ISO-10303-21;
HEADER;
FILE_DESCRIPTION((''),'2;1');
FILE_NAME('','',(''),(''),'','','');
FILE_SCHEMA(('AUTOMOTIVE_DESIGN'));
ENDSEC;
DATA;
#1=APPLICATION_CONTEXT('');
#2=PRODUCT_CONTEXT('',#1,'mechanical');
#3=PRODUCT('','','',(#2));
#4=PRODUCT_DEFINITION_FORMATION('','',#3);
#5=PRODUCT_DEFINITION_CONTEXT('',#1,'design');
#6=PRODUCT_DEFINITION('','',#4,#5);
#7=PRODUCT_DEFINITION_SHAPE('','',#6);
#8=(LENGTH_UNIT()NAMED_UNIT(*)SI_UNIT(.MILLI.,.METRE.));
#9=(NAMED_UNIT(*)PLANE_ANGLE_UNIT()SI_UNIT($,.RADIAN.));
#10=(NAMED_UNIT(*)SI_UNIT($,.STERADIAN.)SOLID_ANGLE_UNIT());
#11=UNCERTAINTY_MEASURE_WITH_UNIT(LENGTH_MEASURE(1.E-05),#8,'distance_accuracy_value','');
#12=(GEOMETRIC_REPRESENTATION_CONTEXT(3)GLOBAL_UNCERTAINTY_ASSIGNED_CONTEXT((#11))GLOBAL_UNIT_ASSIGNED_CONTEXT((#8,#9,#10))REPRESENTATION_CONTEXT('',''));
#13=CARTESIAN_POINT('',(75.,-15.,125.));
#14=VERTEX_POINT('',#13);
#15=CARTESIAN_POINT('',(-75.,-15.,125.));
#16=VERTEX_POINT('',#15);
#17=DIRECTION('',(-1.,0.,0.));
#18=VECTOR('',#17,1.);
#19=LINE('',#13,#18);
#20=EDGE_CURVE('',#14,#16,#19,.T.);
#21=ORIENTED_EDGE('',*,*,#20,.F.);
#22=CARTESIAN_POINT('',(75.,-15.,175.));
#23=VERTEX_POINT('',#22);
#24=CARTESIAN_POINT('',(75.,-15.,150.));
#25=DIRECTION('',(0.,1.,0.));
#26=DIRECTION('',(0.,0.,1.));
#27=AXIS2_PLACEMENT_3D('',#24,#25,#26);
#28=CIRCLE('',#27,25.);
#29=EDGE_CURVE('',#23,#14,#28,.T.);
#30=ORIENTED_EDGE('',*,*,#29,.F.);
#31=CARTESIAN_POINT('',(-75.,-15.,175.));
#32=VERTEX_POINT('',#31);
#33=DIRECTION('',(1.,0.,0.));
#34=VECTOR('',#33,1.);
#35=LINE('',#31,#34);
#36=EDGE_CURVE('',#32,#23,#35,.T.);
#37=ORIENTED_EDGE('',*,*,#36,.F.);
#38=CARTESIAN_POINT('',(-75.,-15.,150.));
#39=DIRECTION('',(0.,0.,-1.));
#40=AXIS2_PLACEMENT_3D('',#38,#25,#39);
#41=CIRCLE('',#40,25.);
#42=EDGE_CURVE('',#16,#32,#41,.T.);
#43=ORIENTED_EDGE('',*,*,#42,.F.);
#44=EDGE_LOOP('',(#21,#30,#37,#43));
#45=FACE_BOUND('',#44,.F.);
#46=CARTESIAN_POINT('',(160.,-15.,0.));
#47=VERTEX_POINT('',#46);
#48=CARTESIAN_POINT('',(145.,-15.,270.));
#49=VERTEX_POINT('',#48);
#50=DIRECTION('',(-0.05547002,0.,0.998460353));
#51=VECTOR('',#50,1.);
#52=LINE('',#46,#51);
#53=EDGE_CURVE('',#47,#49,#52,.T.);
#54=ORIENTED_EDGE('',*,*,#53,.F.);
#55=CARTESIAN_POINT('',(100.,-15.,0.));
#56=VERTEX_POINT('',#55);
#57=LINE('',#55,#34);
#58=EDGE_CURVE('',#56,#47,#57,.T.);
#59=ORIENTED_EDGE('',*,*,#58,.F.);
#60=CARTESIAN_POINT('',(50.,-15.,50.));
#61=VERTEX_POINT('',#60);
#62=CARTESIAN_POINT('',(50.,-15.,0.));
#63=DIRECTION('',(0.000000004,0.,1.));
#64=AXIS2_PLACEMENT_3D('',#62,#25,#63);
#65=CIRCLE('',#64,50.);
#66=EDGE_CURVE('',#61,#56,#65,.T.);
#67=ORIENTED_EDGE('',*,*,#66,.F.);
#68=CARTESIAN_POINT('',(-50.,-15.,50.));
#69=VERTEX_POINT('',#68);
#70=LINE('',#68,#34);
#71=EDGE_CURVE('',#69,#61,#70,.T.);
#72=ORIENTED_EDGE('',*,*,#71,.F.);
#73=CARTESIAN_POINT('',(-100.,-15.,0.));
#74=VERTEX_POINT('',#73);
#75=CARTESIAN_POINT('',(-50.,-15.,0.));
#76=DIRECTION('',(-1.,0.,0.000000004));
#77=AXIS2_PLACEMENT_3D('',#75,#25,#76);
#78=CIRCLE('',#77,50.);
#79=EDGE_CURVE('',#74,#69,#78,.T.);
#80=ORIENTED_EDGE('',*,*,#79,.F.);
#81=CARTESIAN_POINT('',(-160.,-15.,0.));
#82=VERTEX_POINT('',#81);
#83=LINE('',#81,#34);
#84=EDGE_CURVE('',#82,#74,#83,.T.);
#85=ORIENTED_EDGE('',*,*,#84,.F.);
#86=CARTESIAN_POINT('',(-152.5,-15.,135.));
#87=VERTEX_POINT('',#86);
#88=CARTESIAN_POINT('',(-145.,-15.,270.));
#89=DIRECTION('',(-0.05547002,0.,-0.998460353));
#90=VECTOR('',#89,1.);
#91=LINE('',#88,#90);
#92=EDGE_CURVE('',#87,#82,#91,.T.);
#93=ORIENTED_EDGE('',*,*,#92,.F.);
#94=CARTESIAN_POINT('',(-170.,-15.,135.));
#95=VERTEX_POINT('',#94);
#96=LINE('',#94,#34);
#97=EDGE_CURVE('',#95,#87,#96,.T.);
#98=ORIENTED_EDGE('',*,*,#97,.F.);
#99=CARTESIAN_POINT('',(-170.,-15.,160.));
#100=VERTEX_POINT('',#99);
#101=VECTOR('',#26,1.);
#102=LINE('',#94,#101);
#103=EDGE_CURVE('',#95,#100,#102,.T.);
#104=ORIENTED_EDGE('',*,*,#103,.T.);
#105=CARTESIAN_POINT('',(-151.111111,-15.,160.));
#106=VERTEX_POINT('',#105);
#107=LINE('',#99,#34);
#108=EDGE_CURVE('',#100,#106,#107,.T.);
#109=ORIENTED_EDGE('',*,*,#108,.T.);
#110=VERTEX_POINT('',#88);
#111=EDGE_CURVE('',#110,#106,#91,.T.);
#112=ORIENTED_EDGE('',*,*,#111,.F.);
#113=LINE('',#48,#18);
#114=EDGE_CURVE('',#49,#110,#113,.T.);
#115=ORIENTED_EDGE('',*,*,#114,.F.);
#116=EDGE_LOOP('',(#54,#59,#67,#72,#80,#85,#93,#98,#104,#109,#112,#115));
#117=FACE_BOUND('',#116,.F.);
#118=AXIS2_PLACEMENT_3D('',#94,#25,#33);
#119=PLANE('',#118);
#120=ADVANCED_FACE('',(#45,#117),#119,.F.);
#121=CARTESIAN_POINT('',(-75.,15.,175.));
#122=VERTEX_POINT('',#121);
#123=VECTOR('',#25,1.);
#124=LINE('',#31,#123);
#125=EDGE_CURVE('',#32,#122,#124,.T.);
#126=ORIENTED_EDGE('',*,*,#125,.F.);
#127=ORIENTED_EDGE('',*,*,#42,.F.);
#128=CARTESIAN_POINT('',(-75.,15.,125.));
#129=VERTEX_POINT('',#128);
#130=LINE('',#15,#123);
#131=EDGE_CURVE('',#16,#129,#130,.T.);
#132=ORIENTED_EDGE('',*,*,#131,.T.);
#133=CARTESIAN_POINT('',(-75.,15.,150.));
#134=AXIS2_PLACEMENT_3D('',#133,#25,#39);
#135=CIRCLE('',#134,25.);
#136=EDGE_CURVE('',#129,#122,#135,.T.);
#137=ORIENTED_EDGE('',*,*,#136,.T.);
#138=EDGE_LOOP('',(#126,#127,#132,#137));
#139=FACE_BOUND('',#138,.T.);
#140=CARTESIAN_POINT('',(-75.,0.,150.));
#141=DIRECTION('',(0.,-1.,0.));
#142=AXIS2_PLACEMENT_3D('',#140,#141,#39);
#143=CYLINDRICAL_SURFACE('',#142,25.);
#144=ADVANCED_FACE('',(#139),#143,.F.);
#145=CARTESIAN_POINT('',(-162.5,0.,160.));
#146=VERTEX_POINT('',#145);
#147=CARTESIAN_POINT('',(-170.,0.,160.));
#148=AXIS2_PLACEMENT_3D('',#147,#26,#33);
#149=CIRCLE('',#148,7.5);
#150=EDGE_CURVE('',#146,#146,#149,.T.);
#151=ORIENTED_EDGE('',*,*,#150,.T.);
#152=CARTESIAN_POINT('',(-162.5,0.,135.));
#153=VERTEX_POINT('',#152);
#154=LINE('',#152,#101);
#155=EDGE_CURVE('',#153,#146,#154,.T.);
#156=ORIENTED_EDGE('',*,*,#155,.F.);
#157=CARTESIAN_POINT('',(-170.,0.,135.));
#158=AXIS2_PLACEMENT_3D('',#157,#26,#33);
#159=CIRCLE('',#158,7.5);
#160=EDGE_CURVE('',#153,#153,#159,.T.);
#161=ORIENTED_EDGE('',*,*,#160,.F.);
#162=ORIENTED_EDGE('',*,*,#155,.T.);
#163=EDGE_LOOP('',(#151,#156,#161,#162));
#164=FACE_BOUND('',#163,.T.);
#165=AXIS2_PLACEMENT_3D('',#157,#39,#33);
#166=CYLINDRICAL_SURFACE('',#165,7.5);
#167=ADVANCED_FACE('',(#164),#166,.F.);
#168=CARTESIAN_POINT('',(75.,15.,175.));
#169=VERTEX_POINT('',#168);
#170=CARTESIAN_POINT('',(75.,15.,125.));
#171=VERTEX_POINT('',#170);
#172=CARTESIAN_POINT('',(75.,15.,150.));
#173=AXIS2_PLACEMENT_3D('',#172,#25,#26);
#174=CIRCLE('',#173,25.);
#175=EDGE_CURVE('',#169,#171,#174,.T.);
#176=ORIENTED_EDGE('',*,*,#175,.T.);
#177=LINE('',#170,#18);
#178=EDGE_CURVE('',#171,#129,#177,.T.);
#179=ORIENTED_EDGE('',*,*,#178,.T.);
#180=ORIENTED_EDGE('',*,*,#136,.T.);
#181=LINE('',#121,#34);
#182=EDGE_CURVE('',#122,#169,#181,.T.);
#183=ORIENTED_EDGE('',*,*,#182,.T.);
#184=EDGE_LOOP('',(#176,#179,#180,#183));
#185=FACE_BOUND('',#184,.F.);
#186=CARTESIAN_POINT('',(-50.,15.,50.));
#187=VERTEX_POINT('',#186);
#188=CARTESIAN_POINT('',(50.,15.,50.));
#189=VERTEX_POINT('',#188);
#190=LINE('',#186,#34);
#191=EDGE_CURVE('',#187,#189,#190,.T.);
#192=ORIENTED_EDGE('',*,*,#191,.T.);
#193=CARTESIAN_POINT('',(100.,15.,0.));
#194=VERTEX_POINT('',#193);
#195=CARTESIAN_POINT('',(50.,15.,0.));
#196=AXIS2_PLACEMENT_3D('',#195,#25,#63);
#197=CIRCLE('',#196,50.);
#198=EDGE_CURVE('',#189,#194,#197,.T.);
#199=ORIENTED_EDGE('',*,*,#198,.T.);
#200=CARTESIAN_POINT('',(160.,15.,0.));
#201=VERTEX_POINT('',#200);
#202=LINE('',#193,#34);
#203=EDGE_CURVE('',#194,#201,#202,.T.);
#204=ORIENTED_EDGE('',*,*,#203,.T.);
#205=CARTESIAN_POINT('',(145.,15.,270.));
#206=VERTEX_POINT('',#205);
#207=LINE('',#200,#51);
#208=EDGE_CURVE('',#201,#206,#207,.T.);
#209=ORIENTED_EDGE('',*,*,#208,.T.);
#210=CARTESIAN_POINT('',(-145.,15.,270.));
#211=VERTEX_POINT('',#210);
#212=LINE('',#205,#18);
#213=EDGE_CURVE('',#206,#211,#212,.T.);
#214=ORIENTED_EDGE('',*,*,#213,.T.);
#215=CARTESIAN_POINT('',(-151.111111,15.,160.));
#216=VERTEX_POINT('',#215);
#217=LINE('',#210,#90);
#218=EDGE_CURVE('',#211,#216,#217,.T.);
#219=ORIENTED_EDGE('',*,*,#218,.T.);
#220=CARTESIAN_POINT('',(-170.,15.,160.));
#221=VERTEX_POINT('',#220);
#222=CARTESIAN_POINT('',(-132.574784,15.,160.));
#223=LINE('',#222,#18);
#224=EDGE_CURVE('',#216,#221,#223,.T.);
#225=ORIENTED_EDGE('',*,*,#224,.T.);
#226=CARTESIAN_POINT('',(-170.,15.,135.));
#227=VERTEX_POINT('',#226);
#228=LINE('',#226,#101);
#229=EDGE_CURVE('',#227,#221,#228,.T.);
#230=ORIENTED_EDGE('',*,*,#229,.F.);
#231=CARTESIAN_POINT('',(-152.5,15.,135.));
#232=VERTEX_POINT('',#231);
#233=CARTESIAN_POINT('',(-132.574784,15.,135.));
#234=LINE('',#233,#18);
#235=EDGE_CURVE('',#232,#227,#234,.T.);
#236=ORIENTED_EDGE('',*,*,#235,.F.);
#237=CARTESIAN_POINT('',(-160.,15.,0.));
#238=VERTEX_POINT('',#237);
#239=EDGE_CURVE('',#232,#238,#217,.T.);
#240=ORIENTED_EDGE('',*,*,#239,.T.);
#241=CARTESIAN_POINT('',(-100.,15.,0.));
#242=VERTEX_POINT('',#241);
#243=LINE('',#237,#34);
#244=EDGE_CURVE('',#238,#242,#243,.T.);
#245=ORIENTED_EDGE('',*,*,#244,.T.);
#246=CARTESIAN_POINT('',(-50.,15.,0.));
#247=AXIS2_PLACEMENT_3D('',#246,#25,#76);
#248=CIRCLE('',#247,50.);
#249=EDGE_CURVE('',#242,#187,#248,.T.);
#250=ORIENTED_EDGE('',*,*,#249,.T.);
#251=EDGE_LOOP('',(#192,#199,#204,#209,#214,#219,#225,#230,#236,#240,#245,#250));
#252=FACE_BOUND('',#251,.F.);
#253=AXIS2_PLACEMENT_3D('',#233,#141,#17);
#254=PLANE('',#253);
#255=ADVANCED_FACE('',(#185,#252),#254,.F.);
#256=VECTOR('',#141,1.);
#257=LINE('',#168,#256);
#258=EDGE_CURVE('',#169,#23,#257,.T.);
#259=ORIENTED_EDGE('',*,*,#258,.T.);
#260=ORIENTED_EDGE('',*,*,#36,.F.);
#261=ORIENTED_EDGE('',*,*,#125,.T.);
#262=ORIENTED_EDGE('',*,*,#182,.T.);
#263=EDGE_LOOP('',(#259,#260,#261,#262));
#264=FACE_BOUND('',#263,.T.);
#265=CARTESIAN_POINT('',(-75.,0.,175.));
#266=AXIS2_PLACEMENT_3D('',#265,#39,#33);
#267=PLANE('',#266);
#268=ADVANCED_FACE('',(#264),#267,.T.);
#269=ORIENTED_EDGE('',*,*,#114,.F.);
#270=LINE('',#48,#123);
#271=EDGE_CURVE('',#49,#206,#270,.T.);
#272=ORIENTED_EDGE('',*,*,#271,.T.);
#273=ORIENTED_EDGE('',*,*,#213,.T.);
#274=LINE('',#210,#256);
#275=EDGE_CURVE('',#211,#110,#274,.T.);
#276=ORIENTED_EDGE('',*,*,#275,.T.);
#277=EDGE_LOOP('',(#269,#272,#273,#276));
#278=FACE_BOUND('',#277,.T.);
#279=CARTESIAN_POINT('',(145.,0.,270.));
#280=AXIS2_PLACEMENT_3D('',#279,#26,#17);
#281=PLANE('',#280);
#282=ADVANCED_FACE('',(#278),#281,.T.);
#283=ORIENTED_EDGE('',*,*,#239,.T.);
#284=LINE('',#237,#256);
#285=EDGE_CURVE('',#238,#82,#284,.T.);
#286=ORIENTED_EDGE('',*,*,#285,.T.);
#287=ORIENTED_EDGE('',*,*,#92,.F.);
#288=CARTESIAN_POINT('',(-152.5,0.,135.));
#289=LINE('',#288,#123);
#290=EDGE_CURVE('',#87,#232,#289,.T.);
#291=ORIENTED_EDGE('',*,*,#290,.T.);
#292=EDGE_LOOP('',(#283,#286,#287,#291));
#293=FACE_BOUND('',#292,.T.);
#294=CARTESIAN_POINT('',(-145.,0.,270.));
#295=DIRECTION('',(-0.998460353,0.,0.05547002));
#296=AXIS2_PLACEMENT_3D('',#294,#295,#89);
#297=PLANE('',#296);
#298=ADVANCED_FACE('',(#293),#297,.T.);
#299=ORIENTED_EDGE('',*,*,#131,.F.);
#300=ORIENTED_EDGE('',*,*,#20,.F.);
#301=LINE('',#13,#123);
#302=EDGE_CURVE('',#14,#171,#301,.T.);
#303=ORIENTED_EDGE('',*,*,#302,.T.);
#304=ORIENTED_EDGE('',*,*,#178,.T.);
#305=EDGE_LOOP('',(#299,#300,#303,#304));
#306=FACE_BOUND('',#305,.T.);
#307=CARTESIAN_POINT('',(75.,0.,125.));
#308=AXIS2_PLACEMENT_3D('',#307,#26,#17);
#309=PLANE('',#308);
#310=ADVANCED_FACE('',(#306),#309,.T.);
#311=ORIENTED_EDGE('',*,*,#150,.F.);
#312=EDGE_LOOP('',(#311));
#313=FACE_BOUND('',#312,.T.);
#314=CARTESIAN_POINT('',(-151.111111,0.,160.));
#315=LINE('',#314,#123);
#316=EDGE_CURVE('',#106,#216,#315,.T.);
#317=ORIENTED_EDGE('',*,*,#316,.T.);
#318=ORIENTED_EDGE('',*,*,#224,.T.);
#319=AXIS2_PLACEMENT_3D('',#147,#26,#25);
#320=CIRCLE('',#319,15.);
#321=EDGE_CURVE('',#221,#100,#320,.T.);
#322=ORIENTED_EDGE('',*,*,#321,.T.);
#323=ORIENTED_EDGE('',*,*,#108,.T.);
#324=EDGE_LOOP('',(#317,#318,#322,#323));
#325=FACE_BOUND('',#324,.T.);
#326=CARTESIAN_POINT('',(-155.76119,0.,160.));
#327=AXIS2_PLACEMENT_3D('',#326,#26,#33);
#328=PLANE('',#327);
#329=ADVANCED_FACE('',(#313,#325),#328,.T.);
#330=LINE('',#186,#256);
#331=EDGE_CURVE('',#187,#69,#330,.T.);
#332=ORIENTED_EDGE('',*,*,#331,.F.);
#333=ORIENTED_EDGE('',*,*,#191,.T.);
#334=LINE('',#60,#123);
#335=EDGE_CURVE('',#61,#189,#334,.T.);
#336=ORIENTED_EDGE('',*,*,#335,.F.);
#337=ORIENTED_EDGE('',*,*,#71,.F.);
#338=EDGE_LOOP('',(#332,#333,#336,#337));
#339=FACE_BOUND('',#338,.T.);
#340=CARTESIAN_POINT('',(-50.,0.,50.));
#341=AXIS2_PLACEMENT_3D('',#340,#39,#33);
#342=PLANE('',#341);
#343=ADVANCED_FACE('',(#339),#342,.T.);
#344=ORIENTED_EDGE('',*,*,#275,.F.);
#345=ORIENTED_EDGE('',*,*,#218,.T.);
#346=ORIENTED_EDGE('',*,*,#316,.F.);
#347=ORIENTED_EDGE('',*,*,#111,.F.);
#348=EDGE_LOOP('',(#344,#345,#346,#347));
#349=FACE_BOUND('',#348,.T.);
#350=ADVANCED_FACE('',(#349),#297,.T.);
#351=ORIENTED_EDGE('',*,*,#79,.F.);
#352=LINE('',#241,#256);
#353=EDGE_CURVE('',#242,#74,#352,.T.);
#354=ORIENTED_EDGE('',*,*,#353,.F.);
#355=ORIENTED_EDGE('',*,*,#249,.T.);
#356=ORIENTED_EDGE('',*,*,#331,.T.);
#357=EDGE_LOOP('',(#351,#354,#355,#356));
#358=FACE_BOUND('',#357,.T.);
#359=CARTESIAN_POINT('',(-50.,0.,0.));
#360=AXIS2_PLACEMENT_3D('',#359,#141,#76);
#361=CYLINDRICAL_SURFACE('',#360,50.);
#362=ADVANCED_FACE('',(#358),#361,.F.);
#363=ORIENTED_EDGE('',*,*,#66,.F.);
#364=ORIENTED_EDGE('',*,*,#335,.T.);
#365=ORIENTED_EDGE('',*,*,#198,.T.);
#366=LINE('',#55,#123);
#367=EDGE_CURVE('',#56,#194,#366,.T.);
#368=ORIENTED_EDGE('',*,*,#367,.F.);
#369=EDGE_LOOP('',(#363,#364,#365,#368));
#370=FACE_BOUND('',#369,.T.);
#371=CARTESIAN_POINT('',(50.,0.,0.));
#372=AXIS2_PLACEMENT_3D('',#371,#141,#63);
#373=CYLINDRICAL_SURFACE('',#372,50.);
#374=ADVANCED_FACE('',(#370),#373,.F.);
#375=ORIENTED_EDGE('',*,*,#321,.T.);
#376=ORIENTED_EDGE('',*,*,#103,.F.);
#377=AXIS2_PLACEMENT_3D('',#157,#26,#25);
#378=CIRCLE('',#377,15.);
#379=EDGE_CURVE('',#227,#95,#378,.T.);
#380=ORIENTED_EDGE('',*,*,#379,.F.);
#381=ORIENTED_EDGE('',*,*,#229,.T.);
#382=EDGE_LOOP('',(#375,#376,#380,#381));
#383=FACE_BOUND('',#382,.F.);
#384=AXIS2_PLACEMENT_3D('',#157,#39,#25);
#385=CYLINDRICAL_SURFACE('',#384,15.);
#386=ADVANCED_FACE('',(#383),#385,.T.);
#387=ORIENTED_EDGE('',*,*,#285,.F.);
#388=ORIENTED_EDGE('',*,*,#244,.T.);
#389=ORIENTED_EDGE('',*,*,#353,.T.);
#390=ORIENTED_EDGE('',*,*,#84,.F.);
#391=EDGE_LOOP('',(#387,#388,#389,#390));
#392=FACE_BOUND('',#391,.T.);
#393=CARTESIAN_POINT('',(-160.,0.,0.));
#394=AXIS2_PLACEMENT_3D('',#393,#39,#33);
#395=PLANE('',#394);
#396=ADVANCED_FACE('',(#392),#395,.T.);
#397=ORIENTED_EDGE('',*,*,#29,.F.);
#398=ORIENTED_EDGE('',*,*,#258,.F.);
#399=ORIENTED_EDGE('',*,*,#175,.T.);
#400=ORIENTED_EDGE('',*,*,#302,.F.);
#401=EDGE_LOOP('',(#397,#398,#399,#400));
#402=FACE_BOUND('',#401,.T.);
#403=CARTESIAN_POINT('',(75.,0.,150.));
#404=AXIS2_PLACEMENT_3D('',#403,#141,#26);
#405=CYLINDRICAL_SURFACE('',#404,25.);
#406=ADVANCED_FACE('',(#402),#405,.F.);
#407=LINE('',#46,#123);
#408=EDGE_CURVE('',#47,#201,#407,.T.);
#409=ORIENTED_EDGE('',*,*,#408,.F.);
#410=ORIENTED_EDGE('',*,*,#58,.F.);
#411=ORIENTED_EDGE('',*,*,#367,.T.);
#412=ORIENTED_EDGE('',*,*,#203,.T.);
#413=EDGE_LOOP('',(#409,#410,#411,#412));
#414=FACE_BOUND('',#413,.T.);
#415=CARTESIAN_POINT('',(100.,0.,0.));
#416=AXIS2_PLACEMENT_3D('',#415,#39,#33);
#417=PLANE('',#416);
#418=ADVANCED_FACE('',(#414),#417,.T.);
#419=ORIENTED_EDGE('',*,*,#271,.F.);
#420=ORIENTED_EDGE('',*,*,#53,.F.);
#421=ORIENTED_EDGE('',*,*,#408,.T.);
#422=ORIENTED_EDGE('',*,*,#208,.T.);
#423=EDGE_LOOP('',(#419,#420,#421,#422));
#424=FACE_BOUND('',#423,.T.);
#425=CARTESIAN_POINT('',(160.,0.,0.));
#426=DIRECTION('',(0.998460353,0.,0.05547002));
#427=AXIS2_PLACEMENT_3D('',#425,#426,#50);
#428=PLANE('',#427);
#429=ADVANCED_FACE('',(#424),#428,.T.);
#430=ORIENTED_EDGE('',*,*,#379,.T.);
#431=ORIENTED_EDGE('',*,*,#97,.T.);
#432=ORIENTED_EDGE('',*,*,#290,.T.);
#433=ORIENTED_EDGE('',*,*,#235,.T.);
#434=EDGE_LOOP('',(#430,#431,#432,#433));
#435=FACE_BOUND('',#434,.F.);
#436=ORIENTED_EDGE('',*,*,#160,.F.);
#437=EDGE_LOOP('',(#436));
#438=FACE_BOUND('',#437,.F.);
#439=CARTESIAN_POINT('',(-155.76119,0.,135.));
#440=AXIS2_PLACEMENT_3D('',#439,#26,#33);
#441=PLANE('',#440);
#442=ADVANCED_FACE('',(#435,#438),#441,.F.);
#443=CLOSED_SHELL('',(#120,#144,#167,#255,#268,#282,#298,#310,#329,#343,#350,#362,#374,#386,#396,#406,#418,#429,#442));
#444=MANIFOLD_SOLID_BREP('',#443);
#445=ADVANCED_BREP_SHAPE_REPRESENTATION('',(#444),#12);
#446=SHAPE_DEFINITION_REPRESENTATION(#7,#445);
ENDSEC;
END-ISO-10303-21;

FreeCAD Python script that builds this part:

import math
import FreeCAD as App
import Part
import Sketcher
from FreeCAD import Vector

doc = App.newDocument("Part")
body = doc.addObject("PartDesign::Body", "Body")

sketch1 = doc.addObject("Sketcher::SketchObject", "Sketch")
body.addObject(sketch1)
sketch1.AttachmentSupport = (doc.XZ_Plane, [""])
sketch1.MapMode = "FlatFace"
sketch1.addGeometry([
    Part.LineSegment(Vector(145, 270, 0), Vector(-145, 270, 0)),
    Part.LineSegment(Vector(-145, 270, 0), Vector(-160, 0, 0)),
    Part.LineSegment(Vector(-160, 0, 0), Vector(-100, 0, 0)),
    Part.ArcOfCircle(Part.Circle(Vector(-50, 0, 0), Vector(0, 0, 1), 50), math.radians(90), math.radians(180)),
    Part.LineSegment(Vector(-50, 50, 0), Vector(50, 50, 0)),
    Part.ArcOfCircle(Part.Circle(Vector(50, 0, 0), Vector(0, 0, 1), 50), math.radians(0), math.radians(90)),
    Part.LineSegment(Vector(100, 0, 0), Vector(160, 0, 0)),
    Part.LineSegment(Vector(160, 0, 0), Vector(145, 270, 0)),
    Part.LineSegment(Vector(-75, 175, 0), Vector(75, 175, 0)),
    Part.ArcOfCircle(Part.Circle(Vector(75, 150, 0), Vector(0, 0, 1), 25), math.radians(-90), math.radians(90)),
    Part.LineSegment(Vector(75, 125, 0), Vector(-75, 125, 0)),
    Part.ArcOfCircle(Part.Circle(Vector(-75, 150, 0), Vector(0, 0, 1), 25), math.radians(90), math.radians(270)),
], False)
sketch1.addConstraint([
    Sketcher.Constraint("Coincident", 0, 2, 1, 1),
    Sketcher.Constraint("Coincident", 1, 2, 2, 1),
    Sketcher.Constraint("Coincident", 2, 2, 3, 2),
    Sketcher.Constraint("Tangent", 3, 1, 4, 1),
    Sketcher.Constraint("Tangent", 4, 2, 5, 2),
    Sketcher.Constraint("Coincident", 5, 1, 6, 1),
    Sketcher.Constraint("Coincident", 6, 2, 7, 1),
    Sketcher.Constraint("Coincident", 7, 2, 0, 1),
    Sketcher.Constraint("Tangent", 8, 2, 9, 2),
    Sketcher.Constraint("Tangent", 9, 1, 10, 1),
    Sketcher.Constraint("Tangent", 10, 2, 11, 2),
    Sketcher.Constraint("Tangent", 11, 1, 8, 1),
    Sketcher.Constraint("Horizontal", 0),
    Sketcher.Constraint("Horizontal", 2),
    Sketcher.Constraint("Horizontal", 4),
    Sketcher.Constraint("Horizontal", 6),
    Sketcher.Constraint("Horizontal", 8),
    Sketcher.Constraint("Horizontal", 10),
    Sketcher.Constraint("Equal", 3, 5),
    Sketcher.Constraint("Symmetric", 3, 3, 5, 3, -1, 1),
    Sketcher.Constraint("Symmetric", 1, 2, 6, 2, -1, 1),
    Sketcher.Constraint("PointOnObject", 1, 2, -1),
    Sketcher.Constraint("Equal", 1, 7),
    Sketcher.Constraint("Radius", 3, 50.0),
    Sketcher.Constraint("Radius", 9, 25.0),
    Sketcher.Constraint("DistanceX", 0, 2, 0, 1, 290.0),
    Sketcher.Constraint("DistanceX", 2, 1, 2, 2, 60.0),
    Sketcher.Constraint("DistanceX", 4, 1, 4, 2, 100.0),
    Sketcher.Constraint("DistanceX", 8, 1, 8, 2, 150.0),
    Sketcher.Constraint("DistanceX", -1, 1, 9, 3, 75.0),
    Sketcher.Constraint("DistanceY", -1, 1, 9, 3, 150.0),
    Sketcher.Constraint("DistanceY", -1, 1, 0, 2, 270.0),
])
pad1 = doc.addObject("PartDesign::Pad", "Pad")
body.addObject(pad1)
pad1.Profile = sketch1
pad1.Length = 30
pad1.Midplane = True

sketch2 = doc.addObject("Sketcher::SketchObject", "Sketch001")
body.addObject(sketch2)
sketch2.AttachmentSupport = (doc.XY_Plane, [""])
sketch2.MapMode = "FlatFace"
sketch2.AttachmentOffset = App.Placement(Vector(0, 0, 135), App.Rotation())
sketch2.addGeometry([
    Part.ArcOfCircle(Part.Circle(Vector(-170, 0, 0), Vector(0, 0, 1), 15), math.radians(90), math.radians(270)),
    Part.LineSegment(Vector(-170, -15, 0), Vector(-132.574784, -15, 0)),
    Part.LineSegment(Vector(-132.574784, -15, 0), Vector(-132.574784, 15, 0)),
    Part.LineSegment(Vector(-132.574784, 15, 0), Vector(-170, 15, 0)),
    Part.Circle(Vector(-170, 0, 0), Vector(0, 0, 1), 7.5),
], False)
sketch2.addConstraint([
    Sketcher.Constraint("Tangent", 0, 2, 1, 1),
    Sketcher.Constraint("Coincident", 1, 2, 2, 1),
    Sketcher.Constraint("Coincident", 2, 2, 3, 1),
    Sketcher.Constraint("Tangent", 3, 2, 0, 1),
    Sketcher.Constraint("Horizontal", 1),
    Sketcher.Constraint("Vertical", 2),
    Sketcher.Constraint("Horizontal", 3),
    Sketcher.Constraint("Coincident", 4, 3, 0, 3),
    Sketcher.Constraint("PointOnObject", 0, 3, -1),
    Sketcher.Constraint("Diameter", 4, 15.0),
    Sketcher.Constraint("Radius", 0, 15.0),
    Sketcher.Constraint("DistanceX", 0, 3, -1, 1, 170.0),
    Sketcher.Constraint("DistanceX", 1, 1, 1, 2, 37.425216),
])
pad2 = doc.addObject("PartDesign::Pad", "Pad001")
body.addObject(pad2)
pad2.Profile = sketch2
pad2.Length = 25

doc.recompute()
